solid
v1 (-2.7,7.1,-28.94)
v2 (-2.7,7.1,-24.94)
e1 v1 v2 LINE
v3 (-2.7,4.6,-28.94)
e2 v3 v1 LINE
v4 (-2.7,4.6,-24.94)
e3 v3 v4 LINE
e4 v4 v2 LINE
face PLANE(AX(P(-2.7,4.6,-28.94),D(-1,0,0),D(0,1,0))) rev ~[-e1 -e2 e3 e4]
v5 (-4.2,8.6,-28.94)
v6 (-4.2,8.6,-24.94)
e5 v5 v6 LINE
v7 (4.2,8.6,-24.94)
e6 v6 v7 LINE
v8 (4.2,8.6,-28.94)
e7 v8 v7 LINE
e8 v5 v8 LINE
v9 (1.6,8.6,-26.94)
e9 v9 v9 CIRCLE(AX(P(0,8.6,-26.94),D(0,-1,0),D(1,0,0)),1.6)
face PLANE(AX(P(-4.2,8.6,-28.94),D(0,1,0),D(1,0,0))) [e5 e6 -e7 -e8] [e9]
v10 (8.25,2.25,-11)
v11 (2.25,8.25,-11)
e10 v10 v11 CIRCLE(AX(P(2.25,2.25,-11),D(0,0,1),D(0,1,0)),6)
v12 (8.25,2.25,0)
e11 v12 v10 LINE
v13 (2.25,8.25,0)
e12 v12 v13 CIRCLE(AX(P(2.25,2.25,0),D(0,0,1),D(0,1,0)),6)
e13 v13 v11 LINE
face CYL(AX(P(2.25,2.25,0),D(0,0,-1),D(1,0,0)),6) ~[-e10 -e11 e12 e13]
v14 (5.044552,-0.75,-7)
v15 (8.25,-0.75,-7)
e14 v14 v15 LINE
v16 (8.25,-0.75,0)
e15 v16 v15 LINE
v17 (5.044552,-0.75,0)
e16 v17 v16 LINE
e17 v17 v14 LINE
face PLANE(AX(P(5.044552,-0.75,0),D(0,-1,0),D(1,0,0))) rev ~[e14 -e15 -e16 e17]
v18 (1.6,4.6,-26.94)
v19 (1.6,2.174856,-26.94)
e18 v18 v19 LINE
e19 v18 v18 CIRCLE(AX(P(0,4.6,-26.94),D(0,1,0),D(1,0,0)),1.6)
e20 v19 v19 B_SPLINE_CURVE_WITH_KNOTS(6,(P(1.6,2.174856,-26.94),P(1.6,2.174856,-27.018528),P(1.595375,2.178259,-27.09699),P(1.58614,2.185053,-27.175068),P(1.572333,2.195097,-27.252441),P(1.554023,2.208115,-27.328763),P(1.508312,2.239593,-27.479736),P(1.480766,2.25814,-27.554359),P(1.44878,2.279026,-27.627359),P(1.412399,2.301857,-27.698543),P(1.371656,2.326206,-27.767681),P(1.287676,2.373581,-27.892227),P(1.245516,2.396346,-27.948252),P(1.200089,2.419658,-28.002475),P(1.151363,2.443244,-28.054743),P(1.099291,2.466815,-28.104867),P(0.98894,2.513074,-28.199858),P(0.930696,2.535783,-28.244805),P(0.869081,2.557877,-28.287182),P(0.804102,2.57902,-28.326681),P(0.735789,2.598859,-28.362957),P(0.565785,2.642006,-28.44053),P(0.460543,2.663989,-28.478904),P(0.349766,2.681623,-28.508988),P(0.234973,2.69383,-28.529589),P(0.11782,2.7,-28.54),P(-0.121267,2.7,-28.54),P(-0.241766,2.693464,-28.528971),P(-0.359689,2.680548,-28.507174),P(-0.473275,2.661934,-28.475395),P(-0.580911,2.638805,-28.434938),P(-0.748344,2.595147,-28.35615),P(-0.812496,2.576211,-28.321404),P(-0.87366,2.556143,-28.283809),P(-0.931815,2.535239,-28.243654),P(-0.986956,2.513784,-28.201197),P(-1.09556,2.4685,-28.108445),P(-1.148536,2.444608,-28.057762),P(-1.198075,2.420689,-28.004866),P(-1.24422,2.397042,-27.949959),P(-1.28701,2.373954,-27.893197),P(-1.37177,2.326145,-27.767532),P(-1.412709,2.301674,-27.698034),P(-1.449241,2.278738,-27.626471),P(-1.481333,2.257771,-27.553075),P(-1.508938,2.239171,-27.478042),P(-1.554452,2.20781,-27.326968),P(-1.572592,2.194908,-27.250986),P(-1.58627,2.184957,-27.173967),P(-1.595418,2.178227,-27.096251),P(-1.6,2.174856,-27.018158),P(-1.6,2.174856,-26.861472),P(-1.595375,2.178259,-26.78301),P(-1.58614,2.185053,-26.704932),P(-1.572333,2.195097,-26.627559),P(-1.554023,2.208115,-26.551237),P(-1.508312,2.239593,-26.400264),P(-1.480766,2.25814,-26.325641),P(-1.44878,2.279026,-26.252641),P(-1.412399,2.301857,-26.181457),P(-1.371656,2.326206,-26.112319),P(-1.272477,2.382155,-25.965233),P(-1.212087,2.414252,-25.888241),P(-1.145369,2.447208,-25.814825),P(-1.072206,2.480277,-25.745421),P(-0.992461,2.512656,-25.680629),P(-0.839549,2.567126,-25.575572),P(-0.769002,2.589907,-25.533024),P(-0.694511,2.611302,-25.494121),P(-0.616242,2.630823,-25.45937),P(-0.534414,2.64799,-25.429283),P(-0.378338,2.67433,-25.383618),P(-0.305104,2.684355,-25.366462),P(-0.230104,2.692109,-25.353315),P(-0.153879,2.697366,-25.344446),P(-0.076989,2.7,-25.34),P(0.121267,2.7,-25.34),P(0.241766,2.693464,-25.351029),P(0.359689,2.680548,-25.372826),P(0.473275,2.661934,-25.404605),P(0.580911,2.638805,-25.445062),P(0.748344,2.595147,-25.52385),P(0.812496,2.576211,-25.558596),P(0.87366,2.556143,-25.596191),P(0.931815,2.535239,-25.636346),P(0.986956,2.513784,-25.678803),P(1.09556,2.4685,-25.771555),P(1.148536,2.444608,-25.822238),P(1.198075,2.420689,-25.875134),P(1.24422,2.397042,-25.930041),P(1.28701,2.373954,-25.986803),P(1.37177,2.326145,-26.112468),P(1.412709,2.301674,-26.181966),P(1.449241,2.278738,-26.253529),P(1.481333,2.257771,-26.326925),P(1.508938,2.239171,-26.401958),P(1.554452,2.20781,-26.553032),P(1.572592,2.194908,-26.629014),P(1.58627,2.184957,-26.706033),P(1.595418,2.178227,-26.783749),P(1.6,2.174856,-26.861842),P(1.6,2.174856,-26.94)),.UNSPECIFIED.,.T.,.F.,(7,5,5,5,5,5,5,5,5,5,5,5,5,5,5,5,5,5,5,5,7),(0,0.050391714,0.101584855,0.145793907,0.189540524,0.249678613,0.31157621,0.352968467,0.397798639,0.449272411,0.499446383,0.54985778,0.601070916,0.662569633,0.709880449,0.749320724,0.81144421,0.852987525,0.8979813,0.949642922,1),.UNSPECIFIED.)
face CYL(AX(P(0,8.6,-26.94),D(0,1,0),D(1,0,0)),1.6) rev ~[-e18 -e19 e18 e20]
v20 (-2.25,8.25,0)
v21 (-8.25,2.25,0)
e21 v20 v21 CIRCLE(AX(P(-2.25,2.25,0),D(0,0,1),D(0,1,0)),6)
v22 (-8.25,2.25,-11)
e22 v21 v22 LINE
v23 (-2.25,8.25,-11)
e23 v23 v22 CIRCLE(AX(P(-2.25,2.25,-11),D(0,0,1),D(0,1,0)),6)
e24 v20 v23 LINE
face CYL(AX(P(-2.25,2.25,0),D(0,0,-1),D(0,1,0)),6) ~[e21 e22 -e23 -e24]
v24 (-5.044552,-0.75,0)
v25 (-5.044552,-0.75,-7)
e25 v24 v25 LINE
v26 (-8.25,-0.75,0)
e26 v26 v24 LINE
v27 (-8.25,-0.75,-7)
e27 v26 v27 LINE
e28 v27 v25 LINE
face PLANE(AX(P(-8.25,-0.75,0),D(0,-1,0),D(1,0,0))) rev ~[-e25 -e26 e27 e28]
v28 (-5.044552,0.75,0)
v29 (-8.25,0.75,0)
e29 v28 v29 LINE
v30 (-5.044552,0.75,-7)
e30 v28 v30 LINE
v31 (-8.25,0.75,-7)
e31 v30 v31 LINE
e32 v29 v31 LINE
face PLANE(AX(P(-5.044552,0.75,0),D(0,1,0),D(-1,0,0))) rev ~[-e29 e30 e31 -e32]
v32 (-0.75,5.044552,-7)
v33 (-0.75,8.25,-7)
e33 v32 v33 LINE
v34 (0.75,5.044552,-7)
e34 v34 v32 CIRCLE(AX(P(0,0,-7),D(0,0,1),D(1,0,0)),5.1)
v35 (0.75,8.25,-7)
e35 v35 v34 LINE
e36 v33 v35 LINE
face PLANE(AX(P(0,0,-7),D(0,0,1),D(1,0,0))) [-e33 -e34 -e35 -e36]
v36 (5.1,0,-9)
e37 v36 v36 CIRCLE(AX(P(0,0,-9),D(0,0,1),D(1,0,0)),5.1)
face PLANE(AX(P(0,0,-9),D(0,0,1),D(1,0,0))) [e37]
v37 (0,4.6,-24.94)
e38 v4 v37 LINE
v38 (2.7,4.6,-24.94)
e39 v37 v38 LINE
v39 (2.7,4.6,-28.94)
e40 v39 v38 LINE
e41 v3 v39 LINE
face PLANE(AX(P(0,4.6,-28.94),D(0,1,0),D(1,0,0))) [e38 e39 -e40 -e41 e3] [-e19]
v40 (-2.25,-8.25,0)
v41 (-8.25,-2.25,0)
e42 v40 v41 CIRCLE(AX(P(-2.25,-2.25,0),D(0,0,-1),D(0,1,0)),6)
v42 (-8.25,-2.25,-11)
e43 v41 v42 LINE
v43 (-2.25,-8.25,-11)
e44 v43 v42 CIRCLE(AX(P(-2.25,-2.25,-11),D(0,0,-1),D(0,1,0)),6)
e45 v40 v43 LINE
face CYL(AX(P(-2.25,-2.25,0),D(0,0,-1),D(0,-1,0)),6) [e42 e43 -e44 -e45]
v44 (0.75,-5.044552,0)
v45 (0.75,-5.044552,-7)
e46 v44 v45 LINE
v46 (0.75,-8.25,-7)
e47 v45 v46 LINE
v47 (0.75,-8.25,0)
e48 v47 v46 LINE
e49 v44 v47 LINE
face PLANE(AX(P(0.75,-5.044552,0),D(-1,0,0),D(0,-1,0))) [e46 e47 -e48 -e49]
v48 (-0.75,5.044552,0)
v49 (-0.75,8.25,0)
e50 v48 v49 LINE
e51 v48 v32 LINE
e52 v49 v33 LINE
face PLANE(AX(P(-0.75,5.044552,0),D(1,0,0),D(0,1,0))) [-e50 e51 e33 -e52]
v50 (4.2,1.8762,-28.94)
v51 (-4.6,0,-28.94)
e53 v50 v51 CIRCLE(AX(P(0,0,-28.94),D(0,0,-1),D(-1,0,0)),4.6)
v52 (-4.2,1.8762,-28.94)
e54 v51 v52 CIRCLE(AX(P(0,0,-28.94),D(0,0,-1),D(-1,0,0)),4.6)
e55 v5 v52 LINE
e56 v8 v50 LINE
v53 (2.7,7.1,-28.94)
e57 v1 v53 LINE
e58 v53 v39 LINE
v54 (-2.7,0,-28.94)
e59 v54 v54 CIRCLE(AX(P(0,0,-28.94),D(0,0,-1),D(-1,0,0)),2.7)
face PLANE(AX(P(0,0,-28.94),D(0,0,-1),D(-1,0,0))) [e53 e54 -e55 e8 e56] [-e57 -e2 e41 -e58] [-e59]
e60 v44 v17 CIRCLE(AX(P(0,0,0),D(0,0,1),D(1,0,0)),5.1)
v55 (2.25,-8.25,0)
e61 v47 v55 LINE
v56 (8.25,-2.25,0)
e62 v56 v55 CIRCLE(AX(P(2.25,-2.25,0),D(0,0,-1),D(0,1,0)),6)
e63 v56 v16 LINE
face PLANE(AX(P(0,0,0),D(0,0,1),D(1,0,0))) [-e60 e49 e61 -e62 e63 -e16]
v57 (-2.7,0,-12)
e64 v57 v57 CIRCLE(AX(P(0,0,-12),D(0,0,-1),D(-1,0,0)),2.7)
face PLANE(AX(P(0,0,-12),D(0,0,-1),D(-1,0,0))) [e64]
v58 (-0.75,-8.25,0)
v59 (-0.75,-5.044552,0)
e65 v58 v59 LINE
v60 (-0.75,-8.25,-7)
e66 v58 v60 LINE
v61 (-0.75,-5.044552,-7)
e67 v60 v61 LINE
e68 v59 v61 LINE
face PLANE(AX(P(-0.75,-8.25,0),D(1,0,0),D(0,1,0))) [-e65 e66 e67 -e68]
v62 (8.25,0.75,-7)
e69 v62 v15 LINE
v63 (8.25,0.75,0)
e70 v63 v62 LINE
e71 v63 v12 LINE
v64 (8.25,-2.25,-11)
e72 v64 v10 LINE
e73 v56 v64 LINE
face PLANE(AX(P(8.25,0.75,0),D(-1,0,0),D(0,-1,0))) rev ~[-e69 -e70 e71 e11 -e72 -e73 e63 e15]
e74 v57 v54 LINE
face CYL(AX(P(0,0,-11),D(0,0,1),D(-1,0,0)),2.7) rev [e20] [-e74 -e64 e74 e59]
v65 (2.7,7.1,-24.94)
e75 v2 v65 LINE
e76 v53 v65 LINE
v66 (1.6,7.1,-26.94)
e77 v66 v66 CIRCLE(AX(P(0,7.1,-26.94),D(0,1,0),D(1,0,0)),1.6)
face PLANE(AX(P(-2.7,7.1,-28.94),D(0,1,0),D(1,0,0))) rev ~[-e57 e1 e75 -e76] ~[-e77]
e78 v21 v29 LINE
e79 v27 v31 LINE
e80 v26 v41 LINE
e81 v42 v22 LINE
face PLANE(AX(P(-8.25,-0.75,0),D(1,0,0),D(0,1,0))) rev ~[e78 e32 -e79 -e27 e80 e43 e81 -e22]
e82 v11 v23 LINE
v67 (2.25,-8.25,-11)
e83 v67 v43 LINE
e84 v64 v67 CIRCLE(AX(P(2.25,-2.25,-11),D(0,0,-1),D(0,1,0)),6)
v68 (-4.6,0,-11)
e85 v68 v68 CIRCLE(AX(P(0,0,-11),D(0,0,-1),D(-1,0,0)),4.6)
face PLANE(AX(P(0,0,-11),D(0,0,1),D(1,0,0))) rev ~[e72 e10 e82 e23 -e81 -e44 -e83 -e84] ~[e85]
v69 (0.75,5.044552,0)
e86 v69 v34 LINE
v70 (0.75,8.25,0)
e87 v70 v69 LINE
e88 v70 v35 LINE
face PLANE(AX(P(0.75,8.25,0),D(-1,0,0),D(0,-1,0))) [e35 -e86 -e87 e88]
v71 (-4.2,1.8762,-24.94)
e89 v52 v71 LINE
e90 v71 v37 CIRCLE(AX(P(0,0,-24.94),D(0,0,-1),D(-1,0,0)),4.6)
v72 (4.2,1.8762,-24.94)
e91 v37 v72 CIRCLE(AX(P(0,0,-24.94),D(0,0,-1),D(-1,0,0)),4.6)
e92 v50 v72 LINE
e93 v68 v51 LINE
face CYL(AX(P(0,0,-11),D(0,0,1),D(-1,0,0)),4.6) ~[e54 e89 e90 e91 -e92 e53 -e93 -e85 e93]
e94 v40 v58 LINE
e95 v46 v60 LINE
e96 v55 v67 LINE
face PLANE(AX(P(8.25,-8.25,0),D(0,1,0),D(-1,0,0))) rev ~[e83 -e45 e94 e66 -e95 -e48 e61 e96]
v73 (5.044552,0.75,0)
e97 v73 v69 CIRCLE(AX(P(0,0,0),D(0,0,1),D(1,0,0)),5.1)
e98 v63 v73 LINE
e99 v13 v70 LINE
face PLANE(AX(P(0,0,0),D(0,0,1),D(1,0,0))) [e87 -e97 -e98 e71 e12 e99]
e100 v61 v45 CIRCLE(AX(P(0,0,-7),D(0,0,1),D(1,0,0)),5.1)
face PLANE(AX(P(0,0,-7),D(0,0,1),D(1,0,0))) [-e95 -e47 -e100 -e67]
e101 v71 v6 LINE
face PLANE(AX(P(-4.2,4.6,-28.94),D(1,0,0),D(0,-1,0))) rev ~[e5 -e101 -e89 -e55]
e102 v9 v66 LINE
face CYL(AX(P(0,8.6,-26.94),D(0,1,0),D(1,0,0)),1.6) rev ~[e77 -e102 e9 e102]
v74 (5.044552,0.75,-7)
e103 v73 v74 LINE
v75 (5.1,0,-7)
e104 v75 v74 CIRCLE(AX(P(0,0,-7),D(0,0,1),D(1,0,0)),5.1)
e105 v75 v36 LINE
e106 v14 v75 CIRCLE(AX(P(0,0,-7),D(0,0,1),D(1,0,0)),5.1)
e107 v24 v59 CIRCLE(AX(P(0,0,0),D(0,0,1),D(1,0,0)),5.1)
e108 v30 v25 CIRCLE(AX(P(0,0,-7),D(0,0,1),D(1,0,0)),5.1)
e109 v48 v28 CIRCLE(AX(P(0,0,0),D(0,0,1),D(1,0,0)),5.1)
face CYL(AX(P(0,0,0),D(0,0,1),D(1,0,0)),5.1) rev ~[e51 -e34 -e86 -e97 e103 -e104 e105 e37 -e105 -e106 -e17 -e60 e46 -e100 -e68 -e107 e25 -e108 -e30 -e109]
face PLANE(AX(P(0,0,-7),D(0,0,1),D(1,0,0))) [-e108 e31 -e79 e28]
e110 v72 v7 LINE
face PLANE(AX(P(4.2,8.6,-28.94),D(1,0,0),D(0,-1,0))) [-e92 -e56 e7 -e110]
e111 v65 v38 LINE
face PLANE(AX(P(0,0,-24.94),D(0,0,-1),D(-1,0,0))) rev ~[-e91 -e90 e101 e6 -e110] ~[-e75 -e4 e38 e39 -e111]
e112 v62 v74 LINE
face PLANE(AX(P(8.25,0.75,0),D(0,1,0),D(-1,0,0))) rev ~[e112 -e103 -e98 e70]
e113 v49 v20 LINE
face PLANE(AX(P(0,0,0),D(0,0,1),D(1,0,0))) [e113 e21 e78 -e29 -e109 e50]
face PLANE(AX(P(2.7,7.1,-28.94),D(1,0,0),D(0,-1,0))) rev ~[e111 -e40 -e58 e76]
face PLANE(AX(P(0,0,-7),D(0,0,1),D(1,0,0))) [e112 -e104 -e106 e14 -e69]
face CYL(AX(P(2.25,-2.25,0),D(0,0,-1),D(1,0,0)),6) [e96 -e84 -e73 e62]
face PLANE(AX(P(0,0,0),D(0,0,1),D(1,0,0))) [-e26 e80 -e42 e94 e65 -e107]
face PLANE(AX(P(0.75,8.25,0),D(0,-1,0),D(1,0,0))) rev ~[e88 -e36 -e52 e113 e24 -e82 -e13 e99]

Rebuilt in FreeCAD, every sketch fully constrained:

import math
import FreeCAD as App
import Part
import Sketcher

V = App.Vector
Q = App.Units.Quantity


def edges_at(feature, points):
    """Names of the edges that pass closest to the given points."""
    edges = feature.Shape.Edges
    near = lambda p: min(range(len(edges)), key=lambda i: edges[i].distToShape(Part.Vertex(*p))[0])
    return sorted({f"Edge{near(p) + 1}" for p in points})

doc = App.newDocument("Part")
body = doc.addObject("PartDesign::Body", "Body")

sketch1 = body.newObject("Sketcher::SketchObject", "Sketch")
sketch1.AttachmentSupport = (doc.getObject("XY_Plane"), [""])
sketch1.MapMode = "FlatFace"
sketch1.addGeometry([
    Part.LineSegment(V(8, 8, 0), V(-8, 8, 0)),
    Part.LineSegment(V(-8, 8, 0), V(-8, -8, 0)),
    Part.LineSegment(V(-8, -8, 0), V(8, -8, 0)),
    Part.LineSegment(V(8, -8, 0), V(8, 8, 0)),
], False)
sketch1.addConstraint([
    Sketcher.Constraint("Coincident", 0, 2, 1, 1),
    Sketcher.Constraint("Coincident", 1, 2, 2, 1),
    Sketcher.Constraint("Coincident", 2, 2, 3, 1),
    Sketcher.Constraint("Coincident", 3, 2, 0, 1),
    Sketcher.Constraint("Horizontal", 0),
    Sketcher.Constraint("Vertical", 1),
    Sketcher.Constraint("Horizontal", 2),
    Sketcher.Constraint("Vertical", 3),
    Sketcher.Constraint("Symmetric", 0, 2, 2, 2, -1, 1),
    Sketcher.Constraint("Equal", 2, 1),
    Sketcher.Constraint("DistanceX", 0, 2, 0, 1, Q("16.5 mm")),
])
pad1 = body.newObject("PartDesign::Pad", "Pad")
pad1.Profile = sketch1
pad1.Length = 11
pad1.Reversed = True

sketch2 = body.newObject("Sketcher::SketchObject", "Sketch001")
sketch2.AttachmentSupport = (doc.getObject("XY_Plane"), [""])
sketch2.MapMode = "FlatFace"
sketch2.addGeometry([
    Part.LineSegment(V(5, -0.8, 0), V(8.2, -0.8, 0)),
    Part.LineSegment(V(8.2, -0.8, 0), V(8.2, 0.8, 0)),
    Part.LineSegment(V(8.2, 0.8, 0), V(5, 0.8, 0)),
    Part.ArcOfCircle(Part.Circle(V(0, 0, 0), V(0, 0, 1), 5.1), math.radians(8), math.radians(82)),
    Part.LineSegment(V(0.8, 5, 0), V(0.8, 8.2, 0)),
    Part.LineSegment(V(0.8, 8.2, 0), V(-0.8, 8.2, 0)),
    Part.LineSegment(V(-0.8, 8.2, 0), V(-0.8, 5, 0)),
    Part.ArcOfCircle(Part.Circle(V(0, 0, 0), V(0, 0, 1), 5.1), math.radians(98), math.radians(172)),
    Part.LineSegment(V(-5, 0.8, 0), V(-8.2, 0.8, 0)),
    Part.LineSegment(V(-8.2, 0.8, 0), V(-8.2, -0.8, 0)),
    Part.LineSegment(V(-8.2, -0.8, 0), V(-5, -0.8, 0)),
    Part.ArcOfCircle(Part.Circle(V(0, 0, 0), V(0, 0, 1), 5.1), math.radians(-172), math.radians(-98)),
    Part.LineSegment(V(-0.8, -5, 0), V(-0.8, -8.2, 0)),
    Part.LineSegment(V(-0.8, -8.2, 0), V(0.8, -8.2, 0)),
    Part.LineSegment(V(0.8, -8.2, 0), V(0.8, -5, 0)),
    Part.ArcOfCircle(Part.Circle(V(0, 0, 0), V(0, 0, 1), 5.1), math.radians(-82), math.radians(-8)),
], False)
sketch2.addConstraint([
    Sketcher.Constraint("Coincident", 0, 2, 1, 1),
    Sketcher.Constraint("Coincident", 1, 2, 2, 1),
    Sketcher.Constraint("Coincident", 2, 2, 3, 1),
    Sketcher.Constraint("Coincident", 3, 2, 4, 1),
    Sketcher.Constraint("Coincident", 4, 2, 5, 1),
    Sketcher.Constraint("Coincident", 5, 2, 6, 1),
    Sketcher.Constraint("Coincident", 6, 2, 7, 1),
    Sketcher.Constraint("Coincident", 7, 2, 8, 1),
    Sketcher.Constraint("Coincident", 8, 2, 9, 1),
    Sketcher.Constraint("Coincident", 9, 2, 10, 1),
    Sketcher.Constraint("Coincident", 10, 2, 11, 1),
    Sketcher.Constraint("Coincident", 11, 2, 12, 1),
    Sketcher.Constraint("Coincident", 12, 2, 13, 1),
    Sketcher.Constraint("Coincident", 13, 2, 14, 1),
    Sketcher.Constraint("Coincident", 14, 2, 15, 1),
    Sketcher.Constraint("Coincident", 15, 2, 0, 1),
    Sketcher.Constraint("Horizontal", 0),
    Sketcher.Constraint("Vertical", 1),
    Sketcher.Constraint("Horizontal", 2),
    Sketcher.Constraint("Vertical", 4),
    Sketcher.Constraint("Horizontal", 5),
    Sketcher.Constraint("Vertical", 6),
    Sketcher.Constraint("Horizontal", 8),
    Sketcher.Constraint("Vertical", 9),
    Sketcher.Constraint("Horizontal", 10),
    Sketcher.Constraint("Vertical", 12),
    Sketcher.Constraint("Horizontal", 13),
    Sketcher.Constraint("Vertical", 14),
    Sketcher.Constraint("Coincident", 3, 3, -1, 1),
    Sketcher.Constraint("Coincident", 7, 3, -1, 1),
    Sketcher.Constraint("Coincident", 11, 3, -1, 1),
    Sketcher.Constraint("Coincident", 15, 3, -1, 1),
    Sketcher.Constraint("Equal", 3, 7),
    Sketcher.Constraint("Equal", 7, 11),
    Sketcher.Constraint("Equal", 11, 15),
    Sketcher.Constraint("Symmetric", 0, 2, 8, 2, -1, 1),
    Sketcher.Constraint("Symmetric", 4, 2, 12, 2, -1, 1),
    Sketcher.Constraint("Horizontal", 3, 2, 6, 2),
    Sketcher.Constraint("Horizontal", 2, 2, 7, 2),
    Sketcher.Constraint("Horizontal", 0, 2, 9, 2),
    Sketcher.Constraint("Horizontal", 11, 2, 14, 2),
    Sketcher.Constraint("Equal", 13, 1),
    Sketcher.Constraint("Equal", 10, 4),
    Sketcher.Constraint("Radius", 3, Q("5.1 mm")),
    Sketcher.Constraint("DistanceX", 5, 2, 5, 1, Q("1.5 mm")),
    Sketcher.Constraint("DistanceX", -1, 1, 0, 2, Q("8.25 mm")),
])
pocket1 = body.newObject("PartDesign::Pocket", "Pocket")
pocket1.Profile = sketch2
pocket1.Length = 7
doc.recompute()

fillet = body.newObject("PartDesign::Fillet", "Fillet")
fillet.Base = (pocket1, edges_at(pocket1, [
    (8.25, 8.25, -5.5),
    (8.25, -8.25, -5.5),
    (-8.25, -8.25, -5.5),
    (-8.25, 8.25, -5.5),
]))
fillet.Radius = 6

sketch3 = body.newObject("Sketcher::SketchObject", "Sketch002")
sketch3.AttachmentSupport = (doc.getObject("XY_Plane"), [""])
sketch3.MapMode = "FlatFace"
sketch3.AttachmentOffset = App.Placement(V(0, 0, -7), App.Rotation())
sketch3.addGeometry(Part.Circle(V(0, 0, 0), V(0, 0, 1), 5), False)
sketch3.addConstraint([
    Sketcher.Constraint("Coincident", 0, 3, -1, 1),
    Sketcher.Constraint("Diameter", 0, Q("10.2 mm")),
])
pocket2 = body.newObject("PartDesign::Pocket", "Pocket001")
pocket2.Profile = sketch3
pocket2.Length = 2

sketch4 = body.newObject("Sketcher::SketchObject", "Sketch003")
sketch4.AttachmentSupport = (doc.getObject("XY_Plane"), [""])
sketch4.MapMode = "FlatFace"
sketch4.AttachmentOffset = App.Placement(V(0, 0, -11), App.Rotation())
sketch4.addGeometry([
    Part.Circle(V(0, 0, 0), V(0, 0, 1), 4.6),
    Part.Circle(V(0, 0, 0), V(0, 0, 1), 2.7),
], False)
sketch4.addConstraint([
    Sketcher.Constraint("Coincident", 0, 3, -1, 1),
    Sketcher.Constraint("Coincident", 1, 3, -1, 1),
    Sketcher.Constraint("Diameter", 0, Q("9.2 mm")),
    Sketcher.Constraint("Diameter", 1, Q("5.4 mm")),
])
pad2 = body.newObject("PartDesign::Pad", "Pad001")
pad2.Profile = sketch4
pad2.Length = 17.94
pad2.Reversed = True

sketch5 = body.newObject("Sketcher::SketchObject", "Sketch004")
sketch5.AttachmentSupport = (doc.getObject("XY_Plane"), [""])
sketch5.MapMode = "FlatFace"
sketch5.AttachmentOffset = App.Placement(V(0, 0, -28.94), App.Rotation())
sketch5.addGeometry([
    Part.ArcOfCircle(Part.Circle(V(0, 0, 0), V(0, 0, 1), 4.6), math.radians(90), math.radians(156)),
    Part.LineSegment(V(-4.2, 1.9, 0), V(-4.2, 8.6, 0)),
    Part.LineSegment(V(-4.2, 8.6, 0), V(4.2, 8.6, 0)),
    Part.LineSegment(V(4.2, 8.6, 0), V(4.2, 1.9, 0)),
    Part.ArcOfCircle(Part.Circle(V(0, 0, 0), V(0, 0, 1), 4.6), math.radians(24), math.radians(90)),
    Part.LineSegment(V(0, 4.6, 0), V(2.7, 4.6, 0)),
    Part.LineSegment(V(2.7, 4.6, 0), V(2.7, 7.1, 0)),
    Part.LineSegment(V(2.7, 7.1, 0), V(-2.7, 7.1, 0)),
    Part.LineSegment(V(-2.7, 7.1, 0), V(-2.7, 4.6, 0)),
    Part.LineSegment(V(-2.7, 4.6, 0), V(0, 4.6, 0)),
], False)
sketch5.addConstraint([
    Sketcher.Constraint("Coincident", 0, 2, 1, 1),
    Sketcher.Constraint("Coincident", 1, 2, 2, 1),
    Sketcher.Constraint("Coincident", 2, 2, 3, 1),
    Sketcher.Constraint("Coincident", 3, 2, 4, 1),
    Sketcher.Constraint("Tangent", 4, 2, 0, 1),
    Sketcher.Constraint("Coincident", 5, 2, 6, 1),
    Sketcher.Constraint("Coincident", 6, 2, 7, 1),
    Sketcher.Constraint("Coincident", 7, 2, 8, 1),
    Sketcher.Constraint("Coincident", 8, 2, 9, 1),
    Sketcher.Constraint("Coincident", 9, 2, 5, 1),
    Sketcher.Constraint("Vertical", 1),
    Sketcher.Constraint("Horizontal", 2),
    Sketcher.Constraint("Vertical", 3),
    Sketcher.Constraint("Horizontal", 5),
    Sketcher.Constraint("Vertical", 6),
    Sketcher.Constraint("Horizontal", 7),
    Sketcher.Constraint("Vertical", 8),
    Sketcher.Constraint("Horizontal", 9),
    Sketcher.Constraint("Coincident", 0, 3, -1, 1),
    Sketcher.Constraint("Coincident", 9, 2, 4, 2),
    Sketcher.Constraint("Equal", 0, 4),
    Sketcher.Constraint("PointOnObject", 4, 2, -2),
    Sketcher.Constraint("Horizontal", 0, 2, 3, 2),
    Sketcher.Constraint("Equal", 5, 9),
    Sketcher.Constraint("DistanceX", 7, 2, 7, 1, Q("5.4 mm")),
    Sketcher.Constraint("DistanceY", 6, 1, 6, 2, Q("2.5 mm")),
    Sketcher.Constraint("Radius", 0, Q("4.6 mm")),
    Sketcher.Constraint("DistanceX", 5, 2, 3, 2, Q("1.5 mm")),
    Sketcher.Constraint("DistanceY", 6, 2, 2, 2, Q("1.5 mm")),
])
pad3 = body.newObject("PartDesign::Pad", "Pad002")
pad3.Profile = sketch5
pad3.Length = 4

sketch6 = body.newObject("Sketcher::SketchObject", "Sketch005")
sketch6.AttachmentSupport = (doc.getObject("XZ_Plane"), [""])
sketch6.MapMode = "FlatFace"
sketch6.AttachmentOffset = App.Placement(V(0, 0, -8.6), App.Rotation())
sketch6.addGeometry(Part.Circle(V(0, -26.9, 0), V(0, 0, 1), 1.6), False)
sketch6.addConstraint([
    Sketcher.Constraint("PointOnObject", 0, 3, -2),
    Sketcher.Constraint("Diameter", 0, Q("3.2 mm")),
    Sketcher.Constraint("DistanceY", 0, 3, -1, 1, Q("26.94 mm")),
])
pocket3 = body.newObject("PartDesign::Pocket", "Pocket002")
pocket3.Profile = sketch6
pocket3.Length = 9.25
pocket3.Reversed = True

sketch7 = body.newObject("Sketcher::SketchObject", "Sketch006")
sketch7.AttachmentSupport = (doc.getObject("XY_Plane"), [""])
sketch7.MapMode = "FlatFace"
sketch7.AttachmentOffset = App.Placement(V(0, 0, -11), App.Rotation())
sketch7.addGeometry(Part.Circle(V(0, 0, 0), V(0, 0, 1), 2.7), False)
sketch7.addConstraint([
    Sketcher.Constraint("Coincident", 0, 3, -1, 1),
    Sketcher.Constraint("Diameter", 0, Q("5.4 mm")),
])
pad4 = body.newObject("PartDesign::Pad", "Pad003")
pad4.Profile = sketch7
pad4.Length = 1
pad4.Reversed = True

doc.recompute()
